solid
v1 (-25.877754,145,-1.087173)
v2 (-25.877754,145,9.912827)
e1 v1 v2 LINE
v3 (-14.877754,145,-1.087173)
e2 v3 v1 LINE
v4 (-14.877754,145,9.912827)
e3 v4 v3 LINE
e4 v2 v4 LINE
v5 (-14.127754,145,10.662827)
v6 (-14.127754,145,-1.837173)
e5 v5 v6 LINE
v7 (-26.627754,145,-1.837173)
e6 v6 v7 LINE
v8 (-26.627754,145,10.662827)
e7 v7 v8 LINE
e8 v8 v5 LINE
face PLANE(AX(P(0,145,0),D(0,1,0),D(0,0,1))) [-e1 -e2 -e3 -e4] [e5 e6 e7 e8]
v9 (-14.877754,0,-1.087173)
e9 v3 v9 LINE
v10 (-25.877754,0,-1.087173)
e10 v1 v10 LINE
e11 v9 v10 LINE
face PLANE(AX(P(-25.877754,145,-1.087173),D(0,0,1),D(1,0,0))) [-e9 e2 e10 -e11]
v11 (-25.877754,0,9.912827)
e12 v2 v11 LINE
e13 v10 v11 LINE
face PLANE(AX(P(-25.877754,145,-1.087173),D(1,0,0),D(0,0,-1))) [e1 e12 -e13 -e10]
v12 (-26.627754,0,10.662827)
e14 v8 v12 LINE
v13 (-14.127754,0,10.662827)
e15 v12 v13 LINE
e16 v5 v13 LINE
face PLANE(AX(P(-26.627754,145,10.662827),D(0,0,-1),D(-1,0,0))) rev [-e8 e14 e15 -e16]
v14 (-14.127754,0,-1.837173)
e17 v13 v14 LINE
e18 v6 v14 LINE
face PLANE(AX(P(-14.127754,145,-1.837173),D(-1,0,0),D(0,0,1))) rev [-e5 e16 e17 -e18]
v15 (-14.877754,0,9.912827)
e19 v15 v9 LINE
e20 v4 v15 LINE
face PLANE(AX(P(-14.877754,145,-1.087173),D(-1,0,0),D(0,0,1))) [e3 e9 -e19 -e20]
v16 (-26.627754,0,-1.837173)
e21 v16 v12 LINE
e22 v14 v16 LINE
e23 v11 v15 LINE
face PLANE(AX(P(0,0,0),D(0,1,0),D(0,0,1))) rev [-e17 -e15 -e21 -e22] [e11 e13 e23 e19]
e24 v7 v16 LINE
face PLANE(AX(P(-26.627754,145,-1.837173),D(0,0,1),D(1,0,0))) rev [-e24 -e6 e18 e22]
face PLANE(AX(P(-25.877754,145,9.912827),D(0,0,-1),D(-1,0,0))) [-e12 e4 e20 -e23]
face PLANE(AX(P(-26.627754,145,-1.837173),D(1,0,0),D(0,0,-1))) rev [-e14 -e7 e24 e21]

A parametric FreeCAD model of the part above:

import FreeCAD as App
import Part
import Sketcher
Q = App.Units.Quantity


def add_polygon(sketch, points):
    """Adds a closed chain of lines whose ends are joined by coincident constraints."""
    first, n = sketch.GeometryCount, len(points)
    for a, b in zip(points, points[1:] + points[:1]):
        sketch.addGeometry(Part.LineSegment(App.Vector(*a, 0), App.Vector(*b, 0)), False)
    for i in range(n):
        sketch.addConstraint(Sketcher.Constraint("Coincident", first + i, 2, first + (i + 1) % n, 1))

doc = App.newDocument("Part")
params = doc.addObject("Spreadsheet::Sheet", "Params")
for row, (alias, value) in enumerate([
    ("sketch1_width", "11 mm"),
    ("sketch1_width2", "12.5 mm"),
    ("pad1_length", "145 mm"),
], start=1):
    params.set(f"A{row}", alias)
    params.set(f"B{row}", "=" + value)
    params.setAlias(f"B{row}", alias)

body = doc.addObject("PartDesign::Body", "Body")

sketch1 = doc.addObject("Sketcher::SketchObject", "Sketch")
body.addObject(sketch1)
sketch1.AttachmentSupport = (doc.XZ_Plane, [""])
sketch1.MapMode = "FlatFace"
add_polygon(sketch1, [(-26.627754, -1.837173), (-26.627754, 10.662827), (-14.127754, 10.662827), (-14.127754, -1.837173)])
add_polygon(sketch1, [(-14.877754, 9.912827), (-25.877754, 9.912827), (-25.877754, -1.087173), (-14.877754, -1.087173)])
sketch1.addConstraint([
    Sketcher.Constraint("Vertical", 0),
    Sketcher.Constraint("Horizontal", 1),
    Sketcher.Constraint("Vertical", 2),
    Sketcher.Constraint("Horizontal", 3),
    Sketcher.Constraint("Horizontal", 4),
    Sketcher.Constraint("Vertical", 5),
    Sketcher.Constraint("Horizontal", 6),
    Sketcher.Constraint("Vertical", 7),
    Sketcher.Constraint("Equal", 3, 0),
    Sketcher.Constraint("Equal", 6, 5),
    Sketcher.Constraint("DistanceX", 4, 2, 4, 1, Q("11 mm")),
    Sketcher.Constraint("DistanceX", 1, 1, 1, 2, Q("12.5 mm")),
    Sketcher.Constraint("DistanceX", 0, 2, 4, 2, Q("0.75 mm")),
    Sketcher.Constraint("DistanceY", 4, 2, 0, 2, Q("0.75 mm")),
    Sketcher.Constraint("DistanceX", 0, 2, -1, 1, Q("26.627754 mm")),
    Sketcher.Constraint("DistanceY", -1, 1, 0, 2, Q("10.662827 mm")),
])
sketch1.setExpression("Constraints[18]", "Params.sketch1_width")
sketch1.setExpression("Constraints[19]", "Params.sketch1_width2")
pad1 = doc.addObject("PartDesign::Pad", "Pad")
body.addObject(pad1)
pad1.Profile = sketch1
pad1.setExpression("Length", "Params.pad1_length")
pad1.Reversed = True

doc.recompute()
